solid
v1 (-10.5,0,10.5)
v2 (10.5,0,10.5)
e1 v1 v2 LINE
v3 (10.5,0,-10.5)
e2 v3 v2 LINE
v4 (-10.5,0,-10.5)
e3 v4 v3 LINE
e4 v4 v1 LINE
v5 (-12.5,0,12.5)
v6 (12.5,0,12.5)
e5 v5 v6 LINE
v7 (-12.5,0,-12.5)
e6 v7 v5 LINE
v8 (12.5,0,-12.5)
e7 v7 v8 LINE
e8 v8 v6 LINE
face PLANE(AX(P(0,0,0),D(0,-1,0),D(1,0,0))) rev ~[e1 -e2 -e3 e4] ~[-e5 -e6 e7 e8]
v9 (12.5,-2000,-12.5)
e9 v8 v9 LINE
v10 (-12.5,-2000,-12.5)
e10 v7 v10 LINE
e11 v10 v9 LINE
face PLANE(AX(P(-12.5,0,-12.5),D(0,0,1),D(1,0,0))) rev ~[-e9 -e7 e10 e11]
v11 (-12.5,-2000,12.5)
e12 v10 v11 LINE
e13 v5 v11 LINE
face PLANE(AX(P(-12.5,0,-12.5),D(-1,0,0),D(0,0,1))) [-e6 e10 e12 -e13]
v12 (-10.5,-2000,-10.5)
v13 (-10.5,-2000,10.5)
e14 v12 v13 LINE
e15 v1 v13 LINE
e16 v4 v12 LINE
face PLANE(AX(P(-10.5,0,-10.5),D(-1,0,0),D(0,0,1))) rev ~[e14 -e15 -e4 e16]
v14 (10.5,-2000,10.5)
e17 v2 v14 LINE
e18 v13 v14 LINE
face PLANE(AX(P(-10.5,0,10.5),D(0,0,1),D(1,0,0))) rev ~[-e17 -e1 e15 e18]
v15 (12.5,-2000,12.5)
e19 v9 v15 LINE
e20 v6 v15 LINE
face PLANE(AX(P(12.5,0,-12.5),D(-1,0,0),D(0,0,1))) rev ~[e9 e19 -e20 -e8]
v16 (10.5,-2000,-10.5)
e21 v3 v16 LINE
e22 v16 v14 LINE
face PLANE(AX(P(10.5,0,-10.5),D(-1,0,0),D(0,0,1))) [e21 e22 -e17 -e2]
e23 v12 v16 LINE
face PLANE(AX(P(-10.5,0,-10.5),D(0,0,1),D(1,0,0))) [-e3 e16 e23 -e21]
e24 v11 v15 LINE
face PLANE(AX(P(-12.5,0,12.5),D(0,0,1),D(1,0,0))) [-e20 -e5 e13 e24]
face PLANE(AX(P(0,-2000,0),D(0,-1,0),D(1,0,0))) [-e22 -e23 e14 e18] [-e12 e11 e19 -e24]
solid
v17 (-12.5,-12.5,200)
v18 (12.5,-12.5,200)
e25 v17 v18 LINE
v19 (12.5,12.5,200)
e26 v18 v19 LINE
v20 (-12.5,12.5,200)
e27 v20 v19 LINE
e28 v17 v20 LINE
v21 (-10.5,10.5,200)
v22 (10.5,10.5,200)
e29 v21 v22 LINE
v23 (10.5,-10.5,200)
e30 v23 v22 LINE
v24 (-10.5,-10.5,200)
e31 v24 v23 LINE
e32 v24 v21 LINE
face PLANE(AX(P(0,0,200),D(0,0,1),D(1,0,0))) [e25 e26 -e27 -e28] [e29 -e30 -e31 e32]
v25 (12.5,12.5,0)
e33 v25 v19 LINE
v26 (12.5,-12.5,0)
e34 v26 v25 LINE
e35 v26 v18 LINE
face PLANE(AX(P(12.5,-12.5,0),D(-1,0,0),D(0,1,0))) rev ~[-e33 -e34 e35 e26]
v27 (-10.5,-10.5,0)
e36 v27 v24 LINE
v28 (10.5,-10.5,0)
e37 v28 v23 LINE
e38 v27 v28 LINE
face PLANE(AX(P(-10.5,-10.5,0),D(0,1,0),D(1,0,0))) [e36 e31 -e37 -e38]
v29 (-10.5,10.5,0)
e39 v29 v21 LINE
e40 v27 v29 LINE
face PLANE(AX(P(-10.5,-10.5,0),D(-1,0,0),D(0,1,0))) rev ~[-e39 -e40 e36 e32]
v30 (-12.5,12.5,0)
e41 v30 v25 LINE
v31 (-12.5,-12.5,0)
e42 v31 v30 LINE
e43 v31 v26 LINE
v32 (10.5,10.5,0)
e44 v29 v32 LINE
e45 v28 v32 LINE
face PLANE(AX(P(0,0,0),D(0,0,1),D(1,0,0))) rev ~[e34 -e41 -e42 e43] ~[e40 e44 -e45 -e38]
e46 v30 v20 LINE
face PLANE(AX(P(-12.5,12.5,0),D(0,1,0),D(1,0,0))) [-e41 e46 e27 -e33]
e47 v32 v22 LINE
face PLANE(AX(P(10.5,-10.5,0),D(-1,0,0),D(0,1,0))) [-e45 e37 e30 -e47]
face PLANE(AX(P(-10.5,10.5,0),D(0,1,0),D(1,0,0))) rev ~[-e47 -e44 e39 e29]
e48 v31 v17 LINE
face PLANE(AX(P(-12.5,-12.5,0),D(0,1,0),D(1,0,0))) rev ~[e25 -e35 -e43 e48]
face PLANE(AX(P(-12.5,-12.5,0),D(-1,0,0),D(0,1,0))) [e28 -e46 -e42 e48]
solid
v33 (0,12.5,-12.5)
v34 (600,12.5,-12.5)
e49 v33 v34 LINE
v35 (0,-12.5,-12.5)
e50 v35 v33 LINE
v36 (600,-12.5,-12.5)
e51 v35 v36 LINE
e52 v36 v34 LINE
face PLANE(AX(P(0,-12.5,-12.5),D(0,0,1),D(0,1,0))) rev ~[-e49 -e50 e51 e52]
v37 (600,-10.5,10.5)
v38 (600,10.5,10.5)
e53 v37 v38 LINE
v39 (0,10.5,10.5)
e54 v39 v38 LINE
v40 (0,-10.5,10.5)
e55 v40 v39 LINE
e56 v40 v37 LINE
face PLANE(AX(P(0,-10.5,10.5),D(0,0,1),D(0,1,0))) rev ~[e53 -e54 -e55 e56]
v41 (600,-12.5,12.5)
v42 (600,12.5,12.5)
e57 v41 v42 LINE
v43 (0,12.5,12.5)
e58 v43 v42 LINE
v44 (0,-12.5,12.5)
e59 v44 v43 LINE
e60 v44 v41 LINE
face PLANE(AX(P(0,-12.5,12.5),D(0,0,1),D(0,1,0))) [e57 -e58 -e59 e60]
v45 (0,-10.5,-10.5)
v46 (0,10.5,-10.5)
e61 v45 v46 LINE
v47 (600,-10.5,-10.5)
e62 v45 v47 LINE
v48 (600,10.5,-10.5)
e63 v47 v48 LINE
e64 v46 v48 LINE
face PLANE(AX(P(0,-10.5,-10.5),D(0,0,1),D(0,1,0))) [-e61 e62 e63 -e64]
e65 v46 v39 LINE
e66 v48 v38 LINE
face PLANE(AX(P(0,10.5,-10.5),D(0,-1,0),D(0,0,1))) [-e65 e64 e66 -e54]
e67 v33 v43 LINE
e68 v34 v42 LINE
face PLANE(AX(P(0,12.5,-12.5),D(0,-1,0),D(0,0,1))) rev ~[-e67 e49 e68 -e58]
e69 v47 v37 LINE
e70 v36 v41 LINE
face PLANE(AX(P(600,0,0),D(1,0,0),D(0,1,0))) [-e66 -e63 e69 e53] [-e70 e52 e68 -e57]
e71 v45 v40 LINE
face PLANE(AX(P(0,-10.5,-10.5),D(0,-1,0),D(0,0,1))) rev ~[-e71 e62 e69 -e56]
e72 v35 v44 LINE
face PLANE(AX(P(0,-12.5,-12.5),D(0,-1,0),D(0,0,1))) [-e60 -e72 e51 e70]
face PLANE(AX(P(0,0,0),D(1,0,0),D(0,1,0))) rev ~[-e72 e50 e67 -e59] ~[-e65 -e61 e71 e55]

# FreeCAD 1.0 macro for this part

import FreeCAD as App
import Part
import Sketcher
from FreeCAD import Vector

doc = App.newDocument("Part")
params = doc.addObject("Spreadsheet::Sheet", "Params")
for row, (alias, value) in enumerate([
    ("sketch1_width", "25 mm"),
    ("sketch1_width2", "21 mm"),
    ("pad1_length", "2000 mm"),
    ("sketch2_width", "25 mm"),
    ("sketch2_width2", "21 mm"),
    ("pad2_length", "600 mm"),
    ("sketch3_width", "25 mm"),
    ("sketch3_width2", "21 mm"),
    ("pad3_length", "200 mm"),
], start=1):
    params.set(f"A{row}", alias)
    params.set(f"B{row}", "=" + value)
    params.setAlias(f"B{row}", alias)

body = doc.addObject("PartDesign::Body", "Body")

sketch1 = body.newObject("Sketcher::SketchObject", "Sketch")
sketch1.AttachmentSupport = (doc.getObject("XZ_Plane"), [""])
sketch1.MapMode = "FlatFace"
sketch1.addGeometry(Part.LineSegment(Vector(-12.5, 12.5, 0), Vector(-12.5, -12.5, 0)), False)
sketch1.addGeometry(Part.LineSegment(Vector(-12.5, -12.5, 0), Vector(12.5, -12.5, 0)), False)
sketch1.addGeometry(Part.LineSegment(Vector(12.5, -12.5, 0), Vector(12.5, 12.5, 0)), False)
sketch1.addGeometry(Part.LineSegment(Vector(12.5, 12.5, 0), Vector(-12.5, 12.5, 0)), False)
sketch1.addGeometry(Part.LineSegment(Vector(10.5, -10.5, 0), Vector(-10.5, -10.5, 0)), False)
sketch1.addGeometry(Part.LineSegment(Vector(-10.5, -10.5, 0), Vector(-10.5, 10.5, 0)), False)
sketch1.addGeometry(Part.LineSegment(Vector(-10.5, 10.5, 0), Vector(10.5, 10.5, 0)), False)
sketch1.addGeometry(Part.LineSegment(Vector(10.5, 10.5, 0), Vector(10.5, -10.5, 0)), False)
sketch1.addConstraint(Sketcher.Constraint("Coincident", 0, 2, 1, 1))
sketch1.addConstraint(Sketcher.Constraint("Coincident", 1, 2, 2, 1))
sketch1.addConstraint(Sketcher.Constraint("Coincident", 2, 2, 3, 1))
sketch1.addConstraint(Sketcher.Constraint("Coincident", 3, 2, 0, 1))
sketch1.addConstraint(Sketcher.Constraint("Coincident", 4, 2, 5, 1))
sketch1.addConstraint(Sketcher.Constraint("Coincident", 5, 2, 6, 1))
sketch1.addConstraint(Sketcher.Constraint("Coincident", 6, 2, 7, 1))
sketch1.addConstraint(Sketcher.Constraint("Coincident", 7, 2, 4, 1))
sketch1.addConstraint(Sketcher.Constraint("Vertical", 0))
sketch1.addConstraint(Sketcher.Constraint("Horizontal", 1))
sketch1.addConstraint(Sketcher.Constraint("Vertical", 2))
sketch1.addConstraint(Sketcher.Constraint("Horizontal", 3))
sketch1.addConstraint(Sketcher.Constraint("Horizontal", 4))
sketch1.addConstraint(Sketcher.Constraint("Vertical", 5))
sketch1.addConstraint(Sketcher.Constraint("Horizontal", 6))
sketch1.addConstraint(Sketcher.Constraint("Vertical", 7))
sketch1.addConstraint(Sketcher.Constraint("Symmetric", 0, 2, 2, 2, -1, 1))
sketch1.addConstraint(Sketcher.Constraint("Symmetric", 4, 2, 6, 2, -1, 1))
sketch1.addConstraint(Sketcher.Constraint("Equal", 3, 0))
sketch1.addConstraint(Sketcher.Constraint("Equal", 6, 5))
sketch1.addConstraint(Sketcher.Constraint("DistanceX", 1, 1, 1, 2, 25.0))
sketch1.addConstraint(Sketcher.Constraint("DistanceX", 4, 2, 4, 1, 21.0))
sketch1.setExpression("Constraints[20]", "Params.sketch1_width")
sketch1.setExpression("Constraints[21]", "Params.sketch1_width2")
pad1 = body.newObject("PartDesign::Pad", "Pad")
pad1.Profile = sketch1
pad1.setExpression("Length", "Params.pad1_length")
body2 = doc.addObject("PartDesign::Body", "Body001")

sketch2 = body2.newObject("Sketcher::SketchObject", "Sketch001")
sketch2.AttachmentSupport = (doc.getObject("YZ_Plane001"), [""])
sketch2.MapMode = "FlatFace"
sketch2.addGeometry(Part.LineSegment(Vector(-12.5, 12.5, 0), Vector(-12.5, -12.5, 0)), False)
sketch2.addGeometry(Part.LineSegment(Vector(-12.5, -12.5, 0), Vector(12.5, -12.5, 0)), False)
sketch2.addGeometry(Part.LineSegment(Vector(12.5, -12.5, 0), Vector(12.5, 12.5, 0)), False)
sketch2.addGeometry(Part.LineSegment(Vector(12.5, 12.5, 0), Vector(-12.5, 12.5, 0)), False)
sketch2.addGeometry(Part.LineSegment(Vector(10.5, -10.5, 0), Vector(-10.5, -10.5, 0)), False)
sketch2.addGeometry(Part.LineSegment(Vector(-10.5, -10.5, 0), Vector(-10.5, 10.5, 0)), False)
sketch2.addGeometry(Part.LineSegment(Vector(-10.5, 10.5, 0), Vector(10.5, 10.5, 0)), False)
sketch2.addGeometry(Part.LineSegment(Vector(10.5, 10.5, 0), Vector(10.5, -10.5, 0)), False)
sketch2.addConstraint(Sketcher.Constraint("Coincident", 0, 2, 1, 1))
sketch2.addConstraint(Sketcher.Constraint("Coincident", 1, 2, 2, 1))
sketch2.addConstraint(Sketcher.Constraint("Coincident", 2, 2, 3, 1))
sketch2.addConstraint(Sketcher.Constraint("Coincident", 3, 2, 0, 1))
sketch2.addConstraint(Sketcher.Constraint("Coincident", 4, 2, 5, 1))
sketch2.addConstraint(Sketcher.Constraint("Coincident", 5, 2, 6, 1))
sketch2.addConstraint(Sketcher.Constraint("Coincident", 6, 2, 7, 1))
sketch2.addConstraint(Sketcher.Constraint("Coincident", 7, 2, 4, 1))
sketch2.addConstraint(Sketcher.Constraint("Vertical", 0))
sketch2.addConstraint(Sketcher.Constraint("Horizontal", 1))
sketch2.addConstraint(Sketcher.Constraint("Vertical", 2))
sketch2.addConstraint(Sketcher.Constraint("Horizontal", 3))
sketch2.addConstraint(Sketcher.Constraint("Horizontal", 4))
sketch2.addConstraint(Sketcher.Constraint("Vertical", 5))
sketch2.addConstraint(Sketcher.Constraint("Horizontal", 6))
sketch2.addConstraint(Sketcher.Constraint("Vertical", 7))
sketch2.addConstraint(Sketcher.Constraint("Symmetric", 0, 2, 2, 2, -1, 1))
sketch2.addConstraint(Sketcher.Constraint("Symmetric", 4, 2, 6, 2, -1, 1))
sketch2.addConstraint(Sketcher.Constraint("Equal", 3, 0))
sketch2.addConstraint(Sketcher.Constraint("Equal", 6, 5))
sketch2.addConstraint(Sketcher.Constraint("DistanceX", 1, 1, 1, 2, 25.0))
sketch2.addConstraint(Sketcher.Constraint("DistanceX", 4, 2, 4, 1, 21.0))
sketch2.setExpression("Constraints[20]", "Params.sketch2_width")
sketch2.setExpression("Constraints[21]", "Params.sketch2_width2")
pad2 = body2.newObject("PartDesign::Pad", "Pad001")
pad2.Profile = sketch2
pad2.setExpression("Length", "Params.pad2_length")
body3 = doc.addObject("PartDesign::Body", "Body002")

sketch3 = body3.newObject("Sketcher::SketchObject", "Sketch002")
sketch3.AttachmentSupport = (doc.getObject("XY_Plane002"), [""])
sketch3.MapMode = "FlatFace"
sketch3.addGeometry(Part.LineSegment(Vector(-12.5, 12.5, 0), Vector(-12.5, -12.5, 0)), False)
sketch3.addGeometry(Part.LineSegment(Vector(-12.5, -12.5, 0), Vector(12.5, -12.5, 0)), False)
sketch3.addGeometry(Part.LineSegment(Vector(12.5, -12.5, 0), Vector(12.5, 12.5, 0)), False)
sketch3.addGeometry(Part.LineSegment(Vector(12.5, 12.5, 0), Vector(-12.5, 12.5, 0)), False)
sketch3.addGeometry(Part.LineSegment(Vector(10.5, -10.5, 0), Vector(-10.5, -10.5, 0)), False)
sketch3.addGeometry(Part.LineSegment(Vector(-10.5, -10.5, 0), Vector(-10.5, 10.5, 0)), False)
sketch3.addGeometry(Part.LineSegment(Vector(-10.5, 10.5, 0), Vector(10.5, 10.5, 0)), False)
sketch3.addGeometry(Part.LineSegment(Vector(10.5, 10.5, 0), Vector(10.5, -10.5, 0)), False)
sketch3.addConstraint(Sketcher.Constraint("Coincident", 0, 2, 1, 1))
sketch3.addConstraint(Sketcher.Constraint("Coincident", 1, 2, 2, 1))
sketch3.addConstraint(Sketcher.Constraint("Coincident", 2, 2, 3, 1))
sketch3.addConstraint(Sketcher.Constraint("Coincident", 3, 2, 0, 1))
sketch3.addConstraint(Sketcher.Constraint("Coincident", 4, 2, 5, 1))
sketch3.addConstraint(Sketcher.Constraint("Coincident", 5, 2, 6, 1))
sketch3.addConstraint(Sketcher.Constraint("Coincident", 6, 2, 7, 1))
sketch3.addConstraint(Sketcher.Constraint("Coincident", 7, 2, 4, 1))
sketch3.addConstraint(Sketcher.Constraint("Vertical", 0))
sketch3.addConstraint(Sketcher.Constraint("Horizontal", 1))
sketch3.addConstraint(Sketcher.Constraint("Vertical", 2))
sketch3.addConstraint(Sketcher.Constraint("Horizontal", 3))
sketch3.addConstraint(Sketcher.Constraint("Horizontal", 4))
sketch3.addConstraint(Sketcher.Constraint("Vertical", 5))
sketch3.addConstraint(Sketcher.Constraint("Horizontal", 6))
sketch3.addConstraint(Sketcher.Constraint("Vertical", 7))
sketch3.addConstraint(Sketcher.Constraint("Symmetric", 0, 2, 2, 2, -1, 1))
sketch3.addConstraint(Sketcher.Constraint("Symmetric", 4, 2, 6, 2, -1, 1))
sketch3.addConstraint(Sketcher.Constraint("Equal", 3, 0))
sketch3.addConstraint(Sketcher.Constraint("Equal", 6, 5))
sketch3.addConstraint(Sketcher.Constraint("DistanceX", 1, 1, 1, 2, 25.0))
sketch3.addConstraint(Sketcher.Constraint("DistanceX", 4, 2, 4, 1, 21.0))
sketch3.setExpression("Constraints[20]", "Params.sketch3_width")
sketch3.setExpression("Constraints[21]", "Params.sketch3_width2")
pad3 = body3.newObject("PartDesign::Pad", "Pad002")
pad3.Profile = sketch3
pad3.setExpression("Length", "Params.pad3_length")

doc.recompute()
